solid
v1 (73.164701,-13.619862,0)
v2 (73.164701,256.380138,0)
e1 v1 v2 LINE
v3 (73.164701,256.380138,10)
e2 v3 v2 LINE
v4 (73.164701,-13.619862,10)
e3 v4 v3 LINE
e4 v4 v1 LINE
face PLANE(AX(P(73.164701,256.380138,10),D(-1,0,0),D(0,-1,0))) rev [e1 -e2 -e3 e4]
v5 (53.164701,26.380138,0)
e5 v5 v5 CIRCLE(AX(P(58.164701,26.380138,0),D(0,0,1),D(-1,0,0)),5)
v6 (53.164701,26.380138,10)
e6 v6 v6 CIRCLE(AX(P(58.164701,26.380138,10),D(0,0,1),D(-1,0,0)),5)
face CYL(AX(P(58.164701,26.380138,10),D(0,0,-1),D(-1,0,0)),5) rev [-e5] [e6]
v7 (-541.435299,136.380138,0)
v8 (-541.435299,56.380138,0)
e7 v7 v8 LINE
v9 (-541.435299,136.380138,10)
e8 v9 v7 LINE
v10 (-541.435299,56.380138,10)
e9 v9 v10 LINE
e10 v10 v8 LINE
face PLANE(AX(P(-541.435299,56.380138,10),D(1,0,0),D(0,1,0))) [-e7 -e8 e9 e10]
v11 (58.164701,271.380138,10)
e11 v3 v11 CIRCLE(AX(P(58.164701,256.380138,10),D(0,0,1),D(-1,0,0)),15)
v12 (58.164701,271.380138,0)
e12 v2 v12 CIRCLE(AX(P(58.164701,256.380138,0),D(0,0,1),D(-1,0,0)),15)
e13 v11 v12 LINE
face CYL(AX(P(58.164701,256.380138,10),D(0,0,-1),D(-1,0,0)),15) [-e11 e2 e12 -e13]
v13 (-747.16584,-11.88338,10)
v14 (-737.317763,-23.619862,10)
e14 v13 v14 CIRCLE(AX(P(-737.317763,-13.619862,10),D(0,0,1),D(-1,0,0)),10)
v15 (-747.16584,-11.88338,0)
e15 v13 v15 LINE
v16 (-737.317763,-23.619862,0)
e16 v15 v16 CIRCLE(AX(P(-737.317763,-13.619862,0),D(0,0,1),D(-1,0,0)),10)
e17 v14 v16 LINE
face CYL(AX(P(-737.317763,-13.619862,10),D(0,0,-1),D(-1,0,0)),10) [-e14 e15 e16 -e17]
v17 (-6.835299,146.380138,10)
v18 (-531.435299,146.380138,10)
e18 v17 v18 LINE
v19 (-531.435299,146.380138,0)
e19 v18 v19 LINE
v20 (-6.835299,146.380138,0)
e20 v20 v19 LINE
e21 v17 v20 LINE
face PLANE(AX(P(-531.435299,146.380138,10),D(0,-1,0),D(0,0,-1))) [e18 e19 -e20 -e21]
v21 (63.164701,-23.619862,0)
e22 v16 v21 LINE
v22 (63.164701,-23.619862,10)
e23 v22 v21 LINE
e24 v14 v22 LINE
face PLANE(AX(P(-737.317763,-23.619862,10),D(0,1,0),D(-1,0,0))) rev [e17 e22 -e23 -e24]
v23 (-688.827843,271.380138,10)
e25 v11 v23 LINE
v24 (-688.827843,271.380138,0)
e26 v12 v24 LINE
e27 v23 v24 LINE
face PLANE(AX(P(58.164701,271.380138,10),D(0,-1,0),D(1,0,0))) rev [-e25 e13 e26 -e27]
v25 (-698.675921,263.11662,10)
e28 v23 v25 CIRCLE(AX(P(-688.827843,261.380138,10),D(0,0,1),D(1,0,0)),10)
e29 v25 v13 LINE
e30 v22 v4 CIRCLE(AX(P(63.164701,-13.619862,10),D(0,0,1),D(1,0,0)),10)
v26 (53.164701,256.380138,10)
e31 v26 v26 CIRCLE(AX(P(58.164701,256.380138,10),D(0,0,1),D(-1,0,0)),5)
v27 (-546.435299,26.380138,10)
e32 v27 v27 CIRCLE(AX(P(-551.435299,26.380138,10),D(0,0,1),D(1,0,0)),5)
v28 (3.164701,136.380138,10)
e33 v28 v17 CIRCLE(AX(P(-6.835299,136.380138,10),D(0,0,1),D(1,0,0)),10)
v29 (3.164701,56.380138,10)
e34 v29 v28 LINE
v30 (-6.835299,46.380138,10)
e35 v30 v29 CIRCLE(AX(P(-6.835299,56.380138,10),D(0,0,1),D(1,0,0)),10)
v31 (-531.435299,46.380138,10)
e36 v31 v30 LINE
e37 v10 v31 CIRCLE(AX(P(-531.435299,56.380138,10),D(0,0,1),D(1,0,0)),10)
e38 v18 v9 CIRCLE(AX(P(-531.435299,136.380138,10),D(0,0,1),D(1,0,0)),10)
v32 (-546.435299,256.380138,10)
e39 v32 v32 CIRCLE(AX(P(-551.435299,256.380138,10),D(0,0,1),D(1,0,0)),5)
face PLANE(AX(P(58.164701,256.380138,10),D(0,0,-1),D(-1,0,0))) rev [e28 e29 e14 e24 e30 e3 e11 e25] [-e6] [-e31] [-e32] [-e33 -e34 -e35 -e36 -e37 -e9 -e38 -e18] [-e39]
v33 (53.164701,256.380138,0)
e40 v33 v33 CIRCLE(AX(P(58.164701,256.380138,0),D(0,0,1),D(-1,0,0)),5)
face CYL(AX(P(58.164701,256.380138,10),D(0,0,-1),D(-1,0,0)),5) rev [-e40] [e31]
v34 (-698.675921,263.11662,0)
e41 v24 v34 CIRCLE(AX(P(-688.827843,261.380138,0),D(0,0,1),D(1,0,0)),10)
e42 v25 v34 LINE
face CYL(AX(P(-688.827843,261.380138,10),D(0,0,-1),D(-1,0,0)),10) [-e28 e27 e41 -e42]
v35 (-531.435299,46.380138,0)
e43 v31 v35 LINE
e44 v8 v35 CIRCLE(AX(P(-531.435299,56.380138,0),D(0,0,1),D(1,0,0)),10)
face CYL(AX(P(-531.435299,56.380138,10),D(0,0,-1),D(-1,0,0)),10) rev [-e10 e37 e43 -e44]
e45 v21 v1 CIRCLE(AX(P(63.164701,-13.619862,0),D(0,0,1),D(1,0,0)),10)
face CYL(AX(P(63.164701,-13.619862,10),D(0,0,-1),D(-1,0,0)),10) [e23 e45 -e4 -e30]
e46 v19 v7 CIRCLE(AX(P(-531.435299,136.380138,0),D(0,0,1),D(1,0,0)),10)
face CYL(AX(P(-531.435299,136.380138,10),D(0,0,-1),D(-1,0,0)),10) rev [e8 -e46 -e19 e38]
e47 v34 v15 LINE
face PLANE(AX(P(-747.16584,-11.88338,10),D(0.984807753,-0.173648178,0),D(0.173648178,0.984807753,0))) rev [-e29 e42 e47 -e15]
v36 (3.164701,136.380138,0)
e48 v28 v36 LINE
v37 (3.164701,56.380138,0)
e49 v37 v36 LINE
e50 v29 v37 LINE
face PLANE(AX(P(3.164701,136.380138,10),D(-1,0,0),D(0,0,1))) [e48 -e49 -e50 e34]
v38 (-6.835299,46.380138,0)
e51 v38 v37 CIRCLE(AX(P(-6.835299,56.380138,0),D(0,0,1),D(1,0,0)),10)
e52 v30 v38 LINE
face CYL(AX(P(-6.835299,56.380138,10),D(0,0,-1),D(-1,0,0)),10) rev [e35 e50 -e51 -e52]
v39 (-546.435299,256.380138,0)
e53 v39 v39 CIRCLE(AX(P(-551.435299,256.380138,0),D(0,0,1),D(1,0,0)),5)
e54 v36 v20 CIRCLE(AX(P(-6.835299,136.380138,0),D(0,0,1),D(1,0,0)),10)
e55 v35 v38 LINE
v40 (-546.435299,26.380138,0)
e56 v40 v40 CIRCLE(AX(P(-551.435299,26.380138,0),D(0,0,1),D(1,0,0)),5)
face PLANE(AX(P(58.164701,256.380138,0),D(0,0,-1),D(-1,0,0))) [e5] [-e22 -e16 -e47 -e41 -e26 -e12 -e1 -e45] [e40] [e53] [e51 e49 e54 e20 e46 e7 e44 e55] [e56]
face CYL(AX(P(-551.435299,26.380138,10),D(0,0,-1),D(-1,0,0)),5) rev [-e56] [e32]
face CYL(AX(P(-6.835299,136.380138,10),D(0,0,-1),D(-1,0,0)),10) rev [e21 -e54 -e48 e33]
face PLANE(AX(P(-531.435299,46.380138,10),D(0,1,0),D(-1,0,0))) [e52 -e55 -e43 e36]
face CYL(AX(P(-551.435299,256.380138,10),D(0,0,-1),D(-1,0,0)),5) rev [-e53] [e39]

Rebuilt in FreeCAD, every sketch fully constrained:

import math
import FreeCAD as App
import Part
import Sketcher
from FreeCAD import Vector
Q = App.Units.Quantity

doc = App.newDocument("Part")
params = doc.addObject("Spreadsheet::Sheet", "Params")
for row, (alias, value) in enumerate([
    ("sketch1_diameter", "10 mm"),
    ("sketch1_radius", "10 mm"),
    ("sketch1_radius2", "15 mm"),
    ("sketch1_height", "270 mm"),
    ("sketch1_height2", "80 mm"),
    ("pad1_length", "10 mm"),
], start=1):
    params.set(f"A{row}", alias)
    params.set(f"B{row}", "=" + value)
    params.setAlias(f"B{row}", alias)

body = doc.addObject("PartDesign::Body", "Body")

# Sketch on XY plane
sketch1 = body.newObject("Sketcher::SketchObject", "Sketch")
sketch1.AttachmentSupport = (doc.getObject("XY_Plane"), [""])
sketch1.MapMode = "FlatFace"
sketch1.addGeometry([
    Part.LineSegment(Vector(-737.317763, -23.619862, 0), Vector(63.164701, -23.619862, 0)),  # 0
    Part.ArcOfCircle(Part.Circle(Vector(63.164701, -13.619862, 0), Vector(0, 0, 1), 10), math.radians(-90), math.radians(0)),  # 1
    Part.LineSegment(Vector(73.164701, -13.619862, 0), Vector(73.164701, 256.380138, 0)),  # 2
    Part.ArcOfCircle(Part.Circle(Vector(58.164701, 256.380138, 0), Vector(0, 0, 1), 15), math.radians(0), math.radians(90)),  # 3
    Part.LineSegment(Vector(58.164701, 271.380138, 0), Vector(-688.827843, 271.380138, 0)),  # 4
    Part.ArcOfCircle(Part.Circle(Vector(-688.827843, 261.380138, 0), Vector(0, 0, 1), 10), math.radians(90), math.radians(170)),  # 5
    Part.LineSegment(Vector(-698.675921, 263.11662, 0), Vector(-747.16584, -11.88338, 0)),  # 6
    Part.ArcOfCircle(Part.Circle(Vector(-737.317763, -13.619862, 0), Vector(0, 0, 1), 10), math.radians(170), math.radians(270)),  # 7
    Part.Circle(Vector(-551.435299, 26.380138, 0), Vector(0, 0, 1), 5),  # 8
    Part.LineSegment(Vector(-6.835299, 46.380138, 0), Vector(-531.435299, 46.380138, 0)),  # 9
    Part.ArcOfCircle(Part.Circle(Vector(-531.435299, 56.380138, 0), Vector(0, 0, 1), 10), math.radians(180), math.radians(270)),  # 10
    Part.LineSegment(Vector(-541.435299, 56.380138, 0), Vector(-541.435299, 136.380138, 0)),  # 11
    Part.ArcOfCircle(Part.Circle(Vector(-531.435299, 136.380138, 0), Vector(0, 0, 1), 10), math.radians(90), math.radians(180)),  # 12
    Part.LineSegment(Vector(-531.435299, 146.380138, 0), Vector(-6.835299, 146.380138, 0)),  # 13
    Part.ArcOfCircle(Part.Circle(Vector(-6.835299, 136.380138, 0), Vector(0, 0, 1), 10), math.radians(0), math.radians(90)),  # 14
    Part.LineSegment(Vector(3.164701, 136.380138, 0), Vector(3.164701, 56.380138, 0)),  # 15
    Part.ArcOfCircle(Part.Circle(Vector(-6.835299, 56.380138, 0), Vector(0, 0, 1), 10), math.radians(-90), math.radians(0)),  # 16
    Part.Circle(Vector(58.164701, 26.380138, 0), Vector(0, 0, 1), 5),  # 17
    Part.Circle(Vector(-551.435299, 256.380138, 0), Vector(0, 0, 1), 5),  # 18
    Part.Circle(Vector(58.164701, 256.380138, 0), Vector(0, 0, 1), 5),  # 19
], False)
sketch1.addConstraint([
    Sketcher.Constraint("Tangent", 0, 2, 1, 1),
    Sketcher.Constraint("Tangent", 1, 2, 2, 1),
    Sketcher.Constraint("Tangent", 2, 2, 3, 1),
    Sketcher.Constraint("Tangent", 3, 2, 4, 1),
    Sketcher.Constraint("Tangent", 4, 2, 5, 1),
    Sketcher.Constraint("Tangent", 5, 2, 6, 1),
    Sketcher.Constraint("Tangent", 6, 2, 7, 1),
    Sketcher.Constraint("Tangent", 7, 2, 0, 1),
    Sketcher.Constraint("Tangent", 9, 2, 10, 2),
    Sketcher.Constraint("Tangent", 10, 1, 11, 1),
    Sketcher.Constraint("Tangent", 11, 2, 12, 2),
    Sketcher.Constraint("Tangent", 12, 1, 13, 1),
    Sketcher.Constraint("Tangent", 13, 2, 14, 2),
    Sketcher.Constraint("Tangent", 14, 1, 15, 1),
    Sketcher.Constraint("Tangent", 15, 2, 16, 2),
    Sketcher.Constraint("Tangent", 16, 1, 9, 1),
    Sketcher.Constraint("Horizontal", 0),
    Sketcher.Constraint("Vertical", 2),
    Sketcher.Constraint("Horizontal", 4),
    Sketcher.Constraint("Horizontal", 9),
    Sketcher.Constraint("Vertical", 11),
    Sketcher.Constraint("Horizontal", 13),
    Sketcher.Constraint("Vertical", 15),
    Sketcher.Constraint("Coincident", 19, 3, 3, 3),
    Sketcher.Constraint("Equal", 1, 5),
    Sketcher.Constraint("Equal", 5, 7),
    Sketcher.Constraint("Equal", 7, 10),
    Sketcher.Constraint("Equal", 10, 12),
    Sketcher.Constraint("Equal", 12, 14),
    Sketcher.Constraint("Equal", 14, 16),
    Sketcher.Constraint("Equal", 8, 17),
    Sketcher.Constraint("Equal", 17, 18),
    Sketcher.Constraint("Equal", 18, 19),
    Sketcher.Constraint("Horizontal", 8, 3, 17, 3),
    Sketcher.Constraint("Horizontal", 3, 3, 18, 3),
    Sketcher.Constraint("Vertical", 3, 3, 17, 3),
    Sketcher.Constraint("Vertical", 8, 3, 18, 3),
    Sketcher.Constraint("Diameter", 8, 10.0),
    Sketcher.Constraint("Radius", 1, 10.0),
    Sketcher.Constraint("Radius", 3, 15.0),
    Sketcher.Constraint("DistanceY", 2, 1, 2, 2, 270.0),
    Sketcher.Constraint("DistanceY", 11, 1, 11, 2, 80.0),
    Sketcher.Constraint("Angle", 6, Q("-100 deg")),
    Sketcher.Constraint("DistanceX", 9, 2, 9, 1, 524.6),
    Sketcher.Constraint("DistanceY", 7, 3, 8, 3, 40.0),
    Sketcher.Constraint("DistanceX", 8, 3, 10, 3, 20.0),
    Sketcher.Constraint("DistanceY", 8, 3, 10, 3, 30.0),
    Sketcher.Constraint("DistanceX", 14, 3, 3, 3, 65.0),
    Sketcher.Constraint("DistanceX", -1, 1, 1, 3, 63.164701),
    Sketcher.Constraint("DistanceX", 0, 1, 0, 2, 800.482464),
    Sketcher.Constraint("DistanceY", 1, 3, -1, 1, 13.619862),
])
sketch1.setExpression("Constraints[37]", "Params.sketch1_diameter")
sketch1.setExpression("Constraints[38]", "Params.sketch1_radius")
sketch1.setExpression("Constraints[39]", "Params.sketch1_radius2")
sketch1.setExpression("Constraints[40]", "Params.sketch1_height")
sketch1.setExpression("Constraints[41]", "Params.sketch1_height2")
pad1 = body.newObject("PartDesign::Pad", "Pad")
pad1.Profile = sketch1
pad1.setExpression("Length", "Params.pad1_length")

doc.recompute()
